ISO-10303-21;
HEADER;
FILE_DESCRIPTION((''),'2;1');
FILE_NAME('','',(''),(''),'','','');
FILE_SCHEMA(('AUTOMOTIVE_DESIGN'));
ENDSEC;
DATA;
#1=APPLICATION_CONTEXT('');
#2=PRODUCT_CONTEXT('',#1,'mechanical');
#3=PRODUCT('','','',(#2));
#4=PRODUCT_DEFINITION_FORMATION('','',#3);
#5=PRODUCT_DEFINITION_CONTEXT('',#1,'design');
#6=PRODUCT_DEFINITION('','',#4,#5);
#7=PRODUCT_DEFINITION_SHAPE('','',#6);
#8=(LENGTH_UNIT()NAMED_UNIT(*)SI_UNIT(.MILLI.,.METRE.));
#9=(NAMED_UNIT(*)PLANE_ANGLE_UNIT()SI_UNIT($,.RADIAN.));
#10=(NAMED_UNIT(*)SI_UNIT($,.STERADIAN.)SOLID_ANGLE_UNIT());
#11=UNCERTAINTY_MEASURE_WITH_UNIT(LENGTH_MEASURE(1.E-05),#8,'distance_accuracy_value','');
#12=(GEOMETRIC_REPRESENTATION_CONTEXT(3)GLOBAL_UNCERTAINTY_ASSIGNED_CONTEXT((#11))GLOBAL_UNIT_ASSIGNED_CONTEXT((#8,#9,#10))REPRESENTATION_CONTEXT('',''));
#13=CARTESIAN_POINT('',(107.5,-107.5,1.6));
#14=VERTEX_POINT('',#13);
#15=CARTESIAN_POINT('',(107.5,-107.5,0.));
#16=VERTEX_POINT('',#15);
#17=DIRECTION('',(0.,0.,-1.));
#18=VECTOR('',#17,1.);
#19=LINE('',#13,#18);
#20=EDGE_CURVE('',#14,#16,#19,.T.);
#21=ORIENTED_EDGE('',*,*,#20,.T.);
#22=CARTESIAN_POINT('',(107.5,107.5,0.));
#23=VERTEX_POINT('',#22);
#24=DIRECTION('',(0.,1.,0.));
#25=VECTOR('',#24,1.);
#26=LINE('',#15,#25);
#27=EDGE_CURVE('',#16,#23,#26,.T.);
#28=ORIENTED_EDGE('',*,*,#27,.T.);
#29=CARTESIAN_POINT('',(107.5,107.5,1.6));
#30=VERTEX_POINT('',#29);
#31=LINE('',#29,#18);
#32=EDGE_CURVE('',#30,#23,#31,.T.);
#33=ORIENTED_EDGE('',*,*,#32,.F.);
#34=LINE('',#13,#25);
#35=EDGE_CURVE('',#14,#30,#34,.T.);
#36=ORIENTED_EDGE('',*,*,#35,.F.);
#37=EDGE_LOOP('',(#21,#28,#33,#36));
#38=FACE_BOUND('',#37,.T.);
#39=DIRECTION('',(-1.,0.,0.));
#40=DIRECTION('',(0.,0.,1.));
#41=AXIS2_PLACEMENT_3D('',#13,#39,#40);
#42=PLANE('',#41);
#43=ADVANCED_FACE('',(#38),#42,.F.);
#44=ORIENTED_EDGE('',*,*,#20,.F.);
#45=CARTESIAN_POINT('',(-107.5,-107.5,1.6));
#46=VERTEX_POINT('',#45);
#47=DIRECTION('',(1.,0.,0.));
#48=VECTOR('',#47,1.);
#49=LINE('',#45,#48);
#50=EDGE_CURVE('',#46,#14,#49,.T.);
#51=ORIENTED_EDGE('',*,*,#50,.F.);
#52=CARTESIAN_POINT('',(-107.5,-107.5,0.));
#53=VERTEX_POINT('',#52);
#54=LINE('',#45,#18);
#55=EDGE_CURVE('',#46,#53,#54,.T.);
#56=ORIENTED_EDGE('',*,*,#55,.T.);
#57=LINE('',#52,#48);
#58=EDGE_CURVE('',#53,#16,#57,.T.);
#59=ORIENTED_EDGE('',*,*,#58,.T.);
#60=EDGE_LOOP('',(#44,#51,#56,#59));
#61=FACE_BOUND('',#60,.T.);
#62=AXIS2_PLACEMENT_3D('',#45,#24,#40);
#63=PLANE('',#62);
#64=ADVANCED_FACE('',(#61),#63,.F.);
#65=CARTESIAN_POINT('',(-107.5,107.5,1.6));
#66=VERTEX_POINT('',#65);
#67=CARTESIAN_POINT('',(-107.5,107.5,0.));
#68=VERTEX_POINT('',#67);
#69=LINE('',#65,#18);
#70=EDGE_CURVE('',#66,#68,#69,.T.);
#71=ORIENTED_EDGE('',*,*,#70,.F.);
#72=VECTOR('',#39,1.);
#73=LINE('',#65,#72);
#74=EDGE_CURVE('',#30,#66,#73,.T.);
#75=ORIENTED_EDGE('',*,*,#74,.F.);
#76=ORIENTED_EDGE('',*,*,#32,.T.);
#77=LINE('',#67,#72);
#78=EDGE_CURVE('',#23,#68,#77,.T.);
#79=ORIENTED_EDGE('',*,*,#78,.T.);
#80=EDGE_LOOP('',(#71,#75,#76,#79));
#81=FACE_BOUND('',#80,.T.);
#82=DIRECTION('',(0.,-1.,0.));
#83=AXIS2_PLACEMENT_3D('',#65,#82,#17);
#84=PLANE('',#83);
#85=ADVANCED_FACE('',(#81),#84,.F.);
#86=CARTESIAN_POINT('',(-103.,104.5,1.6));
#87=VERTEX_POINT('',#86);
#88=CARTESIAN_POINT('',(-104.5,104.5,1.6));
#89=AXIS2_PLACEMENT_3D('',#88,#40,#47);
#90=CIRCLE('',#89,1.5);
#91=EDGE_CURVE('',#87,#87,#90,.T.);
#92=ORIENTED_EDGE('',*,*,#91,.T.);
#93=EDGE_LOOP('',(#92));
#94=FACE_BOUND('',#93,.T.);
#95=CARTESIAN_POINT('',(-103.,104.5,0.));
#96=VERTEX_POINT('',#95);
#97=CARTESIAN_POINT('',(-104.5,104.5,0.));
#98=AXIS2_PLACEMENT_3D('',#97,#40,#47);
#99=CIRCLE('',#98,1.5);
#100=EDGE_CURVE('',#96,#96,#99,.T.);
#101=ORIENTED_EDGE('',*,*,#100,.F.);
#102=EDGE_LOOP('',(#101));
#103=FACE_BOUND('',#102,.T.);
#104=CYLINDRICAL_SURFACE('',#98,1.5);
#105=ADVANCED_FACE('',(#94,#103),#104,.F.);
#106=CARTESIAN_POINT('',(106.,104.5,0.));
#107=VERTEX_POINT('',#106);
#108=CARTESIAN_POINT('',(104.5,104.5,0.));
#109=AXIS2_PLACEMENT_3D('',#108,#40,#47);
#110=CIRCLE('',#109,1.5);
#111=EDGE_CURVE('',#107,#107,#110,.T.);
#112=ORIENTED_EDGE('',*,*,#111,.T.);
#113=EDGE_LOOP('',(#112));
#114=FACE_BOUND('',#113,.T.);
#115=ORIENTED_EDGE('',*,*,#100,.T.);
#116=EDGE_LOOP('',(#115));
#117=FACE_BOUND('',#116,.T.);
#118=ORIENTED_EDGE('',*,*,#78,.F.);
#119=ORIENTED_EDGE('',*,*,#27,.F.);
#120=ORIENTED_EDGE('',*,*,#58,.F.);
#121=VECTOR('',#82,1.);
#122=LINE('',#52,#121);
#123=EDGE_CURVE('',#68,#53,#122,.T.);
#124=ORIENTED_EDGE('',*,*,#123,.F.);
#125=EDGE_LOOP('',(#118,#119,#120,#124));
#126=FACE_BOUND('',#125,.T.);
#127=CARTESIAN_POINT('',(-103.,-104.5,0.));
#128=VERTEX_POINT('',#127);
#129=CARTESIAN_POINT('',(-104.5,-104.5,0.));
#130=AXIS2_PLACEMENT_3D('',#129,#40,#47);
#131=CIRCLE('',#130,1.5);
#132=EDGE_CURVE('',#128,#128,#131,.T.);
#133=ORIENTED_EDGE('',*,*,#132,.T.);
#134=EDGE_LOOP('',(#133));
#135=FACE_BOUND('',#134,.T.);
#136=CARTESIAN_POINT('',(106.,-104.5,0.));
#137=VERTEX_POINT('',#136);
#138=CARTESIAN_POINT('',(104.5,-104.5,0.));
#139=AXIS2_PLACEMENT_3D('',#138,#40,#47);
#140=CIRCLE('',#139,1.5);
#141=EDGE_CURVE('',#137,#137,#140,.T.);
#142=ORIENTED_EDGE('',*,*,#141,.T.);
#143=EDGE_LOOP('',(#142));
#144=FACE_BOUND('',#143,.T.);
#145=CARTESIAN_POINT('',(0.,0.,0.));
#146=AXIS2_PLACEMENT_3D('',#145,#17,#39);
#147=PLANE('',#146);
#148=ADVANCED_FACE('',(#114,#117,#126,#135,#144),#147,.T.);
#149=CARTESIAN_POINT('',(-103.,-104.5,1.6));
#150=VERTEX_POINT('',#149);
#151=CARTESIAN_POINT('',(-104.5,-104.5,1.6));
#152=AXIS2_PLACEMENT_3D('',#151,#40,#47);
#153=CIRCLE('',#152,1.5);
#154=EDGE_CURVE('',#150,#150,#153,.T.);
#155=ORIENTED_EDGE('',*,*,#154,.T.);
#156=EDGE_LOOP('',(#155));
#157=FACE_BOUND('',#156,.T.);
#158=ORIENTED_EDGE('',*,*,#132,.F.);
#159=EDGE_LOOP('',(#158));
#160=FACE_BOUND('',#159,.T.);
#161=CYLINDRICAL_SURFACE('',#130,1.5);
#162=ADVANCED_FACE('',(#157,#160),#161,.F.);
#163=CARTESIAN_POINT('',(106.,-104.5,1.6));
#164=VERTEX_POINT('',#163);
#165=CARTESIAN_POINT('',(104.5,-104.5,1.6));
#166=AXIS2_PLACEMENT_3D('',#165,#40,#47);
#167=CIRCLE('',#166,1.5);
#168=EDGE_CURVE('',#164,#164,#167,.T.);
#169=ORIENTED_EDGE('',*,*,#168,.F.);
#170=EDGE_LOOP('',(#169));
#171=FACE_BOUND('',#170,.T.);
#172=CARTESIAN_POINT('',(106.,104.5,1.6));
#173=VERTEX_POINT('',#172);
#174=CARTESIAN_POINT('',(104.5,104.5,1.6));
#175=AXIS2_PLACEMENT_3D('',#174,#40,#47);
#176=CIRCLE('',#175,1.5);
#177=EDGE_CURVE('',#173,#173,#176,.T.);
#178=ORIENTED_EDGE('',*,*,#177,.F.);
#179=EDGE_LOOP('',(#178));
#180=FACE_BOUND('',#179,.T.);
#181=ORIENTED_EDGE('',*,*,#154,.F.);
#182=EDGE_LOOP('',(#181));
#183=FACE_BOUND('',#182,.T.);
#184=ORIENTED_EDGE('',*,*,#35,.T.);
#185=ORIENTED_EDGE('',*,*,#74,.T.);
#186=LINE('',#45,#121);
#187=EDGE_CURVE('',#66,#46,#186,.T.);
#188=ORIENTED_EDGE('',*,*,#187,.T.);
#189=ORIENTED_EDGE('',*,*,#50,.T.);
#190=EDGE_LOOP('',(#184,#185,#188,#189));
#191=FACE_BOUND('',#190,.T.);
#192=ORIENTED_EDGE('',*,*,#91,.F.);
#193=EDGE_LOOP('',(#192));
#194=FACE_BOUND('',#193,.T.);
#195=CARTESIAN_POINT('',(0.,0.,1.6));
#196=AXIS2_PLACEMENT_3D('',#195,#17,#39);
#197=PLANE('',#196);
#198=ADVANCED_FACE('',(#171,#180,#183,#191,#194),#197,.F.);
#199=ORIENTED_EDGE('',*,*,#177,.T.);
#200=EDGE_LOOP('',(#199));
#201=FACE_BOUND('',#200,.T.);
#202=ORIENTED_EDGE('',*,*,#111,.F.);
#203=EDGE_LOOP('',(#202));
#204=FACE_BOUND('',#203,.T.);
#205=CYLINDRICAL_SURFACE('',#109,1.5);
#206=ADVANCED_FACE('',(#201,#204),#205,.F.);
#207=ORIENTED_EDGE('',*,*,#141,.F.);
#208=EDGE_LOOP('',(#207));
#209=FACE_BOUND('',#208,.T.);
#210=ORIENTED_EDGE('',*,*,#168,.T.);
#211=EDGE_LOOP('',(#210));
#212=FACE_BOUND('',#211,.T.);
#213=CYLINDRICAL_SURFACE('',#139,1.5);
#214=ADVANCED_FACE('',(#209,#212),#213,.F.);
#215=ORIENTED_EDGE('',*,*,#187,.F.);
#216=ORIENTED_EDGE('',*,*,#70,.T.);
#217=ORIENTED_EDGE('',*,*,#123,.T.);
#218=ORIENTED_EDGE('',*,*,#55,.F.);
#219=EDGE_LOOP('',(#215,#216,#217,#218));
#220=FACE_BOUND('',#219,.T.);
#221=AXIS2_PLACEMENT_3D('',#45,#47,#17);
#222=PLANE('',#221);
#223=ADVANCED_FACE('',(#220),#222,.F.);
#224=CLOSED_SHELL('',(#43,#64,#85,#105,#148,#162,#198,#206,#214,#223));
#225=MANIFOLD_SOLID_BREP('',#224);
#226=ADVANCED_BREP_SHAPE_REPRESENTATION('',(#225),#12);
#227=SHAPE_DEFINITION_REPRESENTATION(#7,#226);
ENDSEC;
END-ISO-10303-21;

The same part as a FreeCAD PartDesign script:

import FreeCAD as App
import Part
import Sketcher
from FreeCAD import Vector


def add_polygon(sketch, points):
    """Adds a closed chain of lines whose ends are joined by coincident constraints."""
    first, n = sketch.GeometryCount, len(points)
    for a, b in zip(points, points[1:] + points[:1]):
        sketch.addGeometry(Part.LineSegment(App.Vector(*a, 0), App.Vector(*b, 0)), False)
    for i in range(n):
        sketch.addConstraint(Sketcher.Constraint("Coincident", first + i, 2, first + (i + 1) % n, 1))

doc = App.newDocument("Part")
params = doc.addObject("Spreadsheet::Sheet", "Params")
for row, (alias, value) in enumerate([
    ("sketch1_width", "215 mm"),
    ("pad1_length", "1.6 mm"),
    ("sketch2_diameter", "3 mm"),
], start=1):
    params.set(f"A{row}", alias)
    params.set(f"B{row}", "=" + value)
    params.setAlias(f"B{row}", alias)

body = doc.addObject("PartDesign::Body", "Body")

sketch1 = body.newObject("Sketcher::SketchObject", "Sketch")
sketch1.AttachmentSupport = (doc.getObject("XY_Plane"), [""])
sketch1.MapMode = "FlatFace"
add_polygon(sketch1, [(-108, 108), (-108, -108), (108, -108), (108, 108)])
sketch1.addConstraint(Sketcher.Constraint("Vertical", 0))
sketch1.addConstraint(Sketcher.Constraint("Horizontal", 1))
sketch1.addConstraint(Sketcher.Constraint("Vertical", 2))
sketch1.addConstraint(Sketcher.Constraint("Horizontal", 3))
sketch1.addConstraint(Sketcher.Constraint("Symmetric", 0, 2, 2, 2, -1, 1))
sketch1.addConstraint(Sketcher.Constraint("Equal", 3, 0))
sketch1.addConstraint(Sketcher.Constraint("DistanceX", 1, 1, 1, 2, 215.0))
sketch1.setExpression("Constraints[10]", "Params.sketch1_width")
pad1 = body.newObject("PartDesign::Pad", "Pad")
pad1.Profile = sketch1
pad1.setExpression("Length", "Params.pad1_length")

sketch2 = body.newObject("Sketcher::SketchObject", "Sketch001")
sketch2.AttachmentSupport = (doc.getObject("XY_Plane"), [""])
sketch2.MapMode = "FlatFace"
sketch2.AttachmentOffset = App.Placement(Vector(0, 0, 1.6), App.Rotation())
sketch2.addGeometry(Part.Circle(Vector(-104.5, 104.5, 0), Vector(0, 0, 1), 1.5), False)
sketch2.addGeometry(Part.Circle(Vector(104.5, 104.5, 0), Vector(0, 0, 1), 1.5), False)
sketch2.addGeometry(Part.Circle(Vector(104.5, -104.5, 0), Vector(0, 0, 1), 1.5), False)
sketch2.addGeometry(Part.Circle(Vector(-104.5, -104.5, 0), Vector(0, 0, 1), 1.5), False)
sketch2.addConstraint(Sketcher.Constraint("Equal", 0, 1))
sketch2.addConstraint(Sketcher.Constraint("Equal", 1, 2))
sketch2.addConstraint(Sketcher.Constraint("Equal", 2, 3))
sketch2.addConstraint(Sketcher.Constraint("Symmetric", 0, 3, 2, 3, -1, 1))
sketch2.addConstraint(Sketcher.Constraint("Symmetric", 1, 3, 3, 3, -1, 1))
sketch2.addConstraint(Sketcher.Constraint("Symmetric", 0, 3, 1, 3, -2))
sketch2.addConstraint(Sketcher.Constraint("Diameter", 0, 3.0))
sketch2.addConstraint(Sketcher.Constraint("DistanceX", 0, 3, 1, 3, 209.0))
sketch2.addConstraint(Sketcher.Constraint("DistanceY", 2, 3, 1, 3, 209.0))
sketch2.setExpression("Constraints[6]", "Params.sketch2_diameter")
pocket1 = body.newObject("PartDesign::Pocket", "Pocket")
pocket1.Profile = sketch2
pocket1.Type = "ThroughAll"

doc.recompute()
